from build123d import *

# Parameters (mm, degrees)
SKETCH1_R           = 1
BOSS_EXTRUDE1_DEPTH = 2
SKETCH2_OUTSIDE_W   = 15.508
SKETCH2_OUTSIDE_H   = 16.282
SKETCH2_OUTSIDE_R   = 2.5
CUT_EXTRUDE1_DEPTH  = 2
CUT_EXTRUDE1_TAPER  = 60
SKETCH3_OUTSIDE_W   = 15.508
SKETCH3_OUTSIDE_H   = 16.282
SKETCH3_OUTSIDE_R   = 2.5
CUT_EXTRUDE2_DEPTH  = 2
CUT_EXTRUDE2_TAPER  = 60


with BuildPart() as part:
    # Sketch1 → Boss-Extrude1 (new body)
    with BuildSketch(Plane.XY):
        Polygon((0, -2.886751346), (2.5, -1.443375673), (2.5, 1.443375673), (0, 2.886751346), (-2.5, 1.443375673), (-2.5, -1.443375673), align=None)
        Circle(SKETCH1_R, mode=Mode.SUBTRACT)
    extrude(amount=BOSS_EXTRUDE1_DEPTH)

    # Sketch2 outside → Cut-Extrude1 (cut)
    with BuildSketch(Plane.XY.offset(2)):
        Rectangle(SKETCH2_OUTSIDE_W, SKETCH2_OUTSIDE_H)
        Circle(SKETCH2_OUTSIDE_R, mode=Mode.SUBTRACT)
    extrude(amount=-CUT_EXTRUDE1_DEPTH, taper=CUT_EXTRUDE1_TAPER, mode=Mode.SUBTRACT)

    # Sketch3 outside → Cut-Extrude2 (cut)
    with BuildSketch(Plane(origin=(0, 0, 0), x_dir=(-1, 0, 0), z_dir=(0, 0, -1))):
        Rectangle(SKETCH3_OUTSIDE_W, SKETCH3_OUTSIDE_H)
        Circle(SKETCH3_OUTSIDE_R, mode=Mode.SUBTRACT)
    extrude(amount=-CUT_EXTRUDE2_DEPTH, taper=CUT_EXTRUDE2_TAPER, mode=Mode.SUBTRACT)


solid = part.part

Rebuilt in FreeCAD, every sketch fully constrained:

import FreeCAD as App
import Part
import Sketcher
Q = App.Units.Quantity


def add_polygon(sketch, points):
    """Adds a closed chain of lines whose ends are joined by coincident constraints."""
    first, n = sketch.GeometryCount, len(points)
    for a, b in zip(points, points[1:] + points[:1]):
        sketch.addGeometry(Part.LineSegment(App.Vector(*a, 0), App.Vector(*b, 0)), False)
    for i in range(n):
        sketch.addConstraint(Sketcher.Constraint("Coincident", first + i, 2, first + (i + 1) % n, 1))

doc = App.newDocument("Part")
body = doc.addObject("PartDesign::Body", "Body")

sketch1 = body.newObject("Sketcher::SketchObject", "Sketch")
sketch1.AttachmentSupport = (doc.getObject("XY_Plane"), [""])
sketch1.MapMode = "FlatFace"
add_polygon(sketch1, [(0, -2.9), (2.5, -1.4), (2.5, 1.4), (0, 2.9), (-2.5, 1.4), (-2.5, -1.4)])
sketch1.addGeometry(Part.Circle(App.Vector(0, 0, 0), App.Vector(0, 0, 1), 1), False)
sketch1.addConstraint(Sketcher.Constraint("Vertical", 1))
sketch1.addConstraint(Sketcher.Constraint("Vertical", 4))
sketch1.addConstraint(Sketcher.Constraint("Coincident", 6, 3, -1, 1))
sketch1.addConstraint(Sketcher.Constraint("Symmetric", 0, 2, 3, 2, -1, 1))
sketch1.addConstraint(Sketcher.Constraint("Symmetric", 2, 2, 5, 2, -1, 1))
sketch1.addConstraint(Sketcher.Constraint("PointOnObject", 2, 2, -2))
sketch1.addConstraint(Sketcher.Constraint("Parallel", 2, 5))
sketch1.addConstraint(Sketcher.Constraint("Horizontal", 1, 2, 3, 2))
sketch1.addConstraint(Sketcher.Constraint("Diameter", 6, Q("2 mm")))
sketch1.addConstraint(Sketcher.Constraint("Angle", 0, Q("30 deg")))
sketch1.addConstraint(Sketcher.Constraint("DistanceX", 3, 2, 1, 2, Q("5 mm")))
sketch1.addConstraint(Sketcher.Constraint("DistanceY", 1, 1, 1, 2, Q("2.886751 mm")))
pad1 = body.newObject("PartDesign::Pad", "Pad")
pad1.Profile = sketch1
pad1.Length = 2

sketch2 = body.newObject("Sketcher::SketchObject", "Sketch001")
sketch2.AttachmentSupport = (doc.getObject("XY_Plane"), [""])
sketch2.MapMode = "FlatFace"
sketch2.AttachmentOffset = App.Placement(App.Vector(0, 0, 2), App.Rotation())
add_polygon(sketch2, [(-7.8, 8.1), (-7.8, -8.1), (7.8, -8.1), (7.8, 8.1)])
sketch2.addGeometry(Part.Circle(App.Vector(0, 0, 0), App.Vector(0, 0, 1), 2.5), False)
sketch2.addConstraint(Sketcher.Constraint("Vertical", 0))
sketch2.addConstraint(Sketcher.Constraint("Horizontal", 1))
sketch2.addConstraint(Sketcher.Constraint("Vertical", 2))
sketch2.addConstraint(Sketcher.Constraint("Horizontal", 3))
sketch2.addConstraint(Sketcher.Constraint("Coincident", 4, 3, -1, 1))
sketch2.addConstraint(Sketcher.Constraint("Symmetric", 0, 2, 2, 2, -1, 1))
sketch2.addConstraint(Sketcher.Constraint("Diameter", 4, Q("5 mm")))
sketch2.addConstraint(Sketcher.Constraint("DistanceX", 1, 1, 1, 2, Q("15.508 mm")))
sketch2.addConstraint(Sketcher.Constraint("DistanceY", 0, 2, 0, 1, Q("16.282 mm")))
pocket1 = body.newObject("PartDesign::Pocket", "Pocket")
pocket1.Profile = sketch2
pocket1.Length = 2
pocket1.TaperAngle = 60

sketch3 = body.newObject("Sketcher::SketchObject", "Sketch002")
sketch3.AttachmentSupport = (doc.getObject("XY_Plane"), [""])
sketch3.MapMode = "FlatFace"
add_polygon(sketch3, [(7.8, 8.1), (7.8, -8.1), (-7.8, -8.1), (-7.8, 8.1)])
sketch3.addGeometry(Part.Circle(App.Vector(0, 0, 0), App.Vector(0, 0, 1), 2.5), False)
sketch3.addConstraint(Sketcher.Constraint("Vertical", 0))
sketch3.addConstraint(Sketcher.Constraint("Horizontal", 1))
sketch3.addConstraint(Sketcher.Constraint("Vertical", 2))
sketch3.addConstraint(Sketcher.Constraint("Horizontal", 3))
sketch3.addConstraint(Sketcher.Constraint("Coincident", 4, 3, -1, 1))
sketch3.addConstraint(Sketcher.Constraint("Symmetric", 0, 2, 2, 2, -1, 1))
sketch3.addConstraint(Sketcher.Constraint("Diameter", 4, Q("5 mm")))
sketch3.addConstraint(Sketcher.Constraint("DistanceX", 1, 2, 1, 1, Q("15.508 mm")))
sketch3.addConstraint(Sketcher.Constraint("DistanceY", 0, 2, 0, 1, Q("16.282 mm")))
pocket2 = body.newObject("PartDesign::Pocket", "Pocket001")
pocket2.Profile = sketch3
pocket2.Length = 2
pocket2.Reversed = True
pocket2.TaperAngle = 60

doc.recompute()
